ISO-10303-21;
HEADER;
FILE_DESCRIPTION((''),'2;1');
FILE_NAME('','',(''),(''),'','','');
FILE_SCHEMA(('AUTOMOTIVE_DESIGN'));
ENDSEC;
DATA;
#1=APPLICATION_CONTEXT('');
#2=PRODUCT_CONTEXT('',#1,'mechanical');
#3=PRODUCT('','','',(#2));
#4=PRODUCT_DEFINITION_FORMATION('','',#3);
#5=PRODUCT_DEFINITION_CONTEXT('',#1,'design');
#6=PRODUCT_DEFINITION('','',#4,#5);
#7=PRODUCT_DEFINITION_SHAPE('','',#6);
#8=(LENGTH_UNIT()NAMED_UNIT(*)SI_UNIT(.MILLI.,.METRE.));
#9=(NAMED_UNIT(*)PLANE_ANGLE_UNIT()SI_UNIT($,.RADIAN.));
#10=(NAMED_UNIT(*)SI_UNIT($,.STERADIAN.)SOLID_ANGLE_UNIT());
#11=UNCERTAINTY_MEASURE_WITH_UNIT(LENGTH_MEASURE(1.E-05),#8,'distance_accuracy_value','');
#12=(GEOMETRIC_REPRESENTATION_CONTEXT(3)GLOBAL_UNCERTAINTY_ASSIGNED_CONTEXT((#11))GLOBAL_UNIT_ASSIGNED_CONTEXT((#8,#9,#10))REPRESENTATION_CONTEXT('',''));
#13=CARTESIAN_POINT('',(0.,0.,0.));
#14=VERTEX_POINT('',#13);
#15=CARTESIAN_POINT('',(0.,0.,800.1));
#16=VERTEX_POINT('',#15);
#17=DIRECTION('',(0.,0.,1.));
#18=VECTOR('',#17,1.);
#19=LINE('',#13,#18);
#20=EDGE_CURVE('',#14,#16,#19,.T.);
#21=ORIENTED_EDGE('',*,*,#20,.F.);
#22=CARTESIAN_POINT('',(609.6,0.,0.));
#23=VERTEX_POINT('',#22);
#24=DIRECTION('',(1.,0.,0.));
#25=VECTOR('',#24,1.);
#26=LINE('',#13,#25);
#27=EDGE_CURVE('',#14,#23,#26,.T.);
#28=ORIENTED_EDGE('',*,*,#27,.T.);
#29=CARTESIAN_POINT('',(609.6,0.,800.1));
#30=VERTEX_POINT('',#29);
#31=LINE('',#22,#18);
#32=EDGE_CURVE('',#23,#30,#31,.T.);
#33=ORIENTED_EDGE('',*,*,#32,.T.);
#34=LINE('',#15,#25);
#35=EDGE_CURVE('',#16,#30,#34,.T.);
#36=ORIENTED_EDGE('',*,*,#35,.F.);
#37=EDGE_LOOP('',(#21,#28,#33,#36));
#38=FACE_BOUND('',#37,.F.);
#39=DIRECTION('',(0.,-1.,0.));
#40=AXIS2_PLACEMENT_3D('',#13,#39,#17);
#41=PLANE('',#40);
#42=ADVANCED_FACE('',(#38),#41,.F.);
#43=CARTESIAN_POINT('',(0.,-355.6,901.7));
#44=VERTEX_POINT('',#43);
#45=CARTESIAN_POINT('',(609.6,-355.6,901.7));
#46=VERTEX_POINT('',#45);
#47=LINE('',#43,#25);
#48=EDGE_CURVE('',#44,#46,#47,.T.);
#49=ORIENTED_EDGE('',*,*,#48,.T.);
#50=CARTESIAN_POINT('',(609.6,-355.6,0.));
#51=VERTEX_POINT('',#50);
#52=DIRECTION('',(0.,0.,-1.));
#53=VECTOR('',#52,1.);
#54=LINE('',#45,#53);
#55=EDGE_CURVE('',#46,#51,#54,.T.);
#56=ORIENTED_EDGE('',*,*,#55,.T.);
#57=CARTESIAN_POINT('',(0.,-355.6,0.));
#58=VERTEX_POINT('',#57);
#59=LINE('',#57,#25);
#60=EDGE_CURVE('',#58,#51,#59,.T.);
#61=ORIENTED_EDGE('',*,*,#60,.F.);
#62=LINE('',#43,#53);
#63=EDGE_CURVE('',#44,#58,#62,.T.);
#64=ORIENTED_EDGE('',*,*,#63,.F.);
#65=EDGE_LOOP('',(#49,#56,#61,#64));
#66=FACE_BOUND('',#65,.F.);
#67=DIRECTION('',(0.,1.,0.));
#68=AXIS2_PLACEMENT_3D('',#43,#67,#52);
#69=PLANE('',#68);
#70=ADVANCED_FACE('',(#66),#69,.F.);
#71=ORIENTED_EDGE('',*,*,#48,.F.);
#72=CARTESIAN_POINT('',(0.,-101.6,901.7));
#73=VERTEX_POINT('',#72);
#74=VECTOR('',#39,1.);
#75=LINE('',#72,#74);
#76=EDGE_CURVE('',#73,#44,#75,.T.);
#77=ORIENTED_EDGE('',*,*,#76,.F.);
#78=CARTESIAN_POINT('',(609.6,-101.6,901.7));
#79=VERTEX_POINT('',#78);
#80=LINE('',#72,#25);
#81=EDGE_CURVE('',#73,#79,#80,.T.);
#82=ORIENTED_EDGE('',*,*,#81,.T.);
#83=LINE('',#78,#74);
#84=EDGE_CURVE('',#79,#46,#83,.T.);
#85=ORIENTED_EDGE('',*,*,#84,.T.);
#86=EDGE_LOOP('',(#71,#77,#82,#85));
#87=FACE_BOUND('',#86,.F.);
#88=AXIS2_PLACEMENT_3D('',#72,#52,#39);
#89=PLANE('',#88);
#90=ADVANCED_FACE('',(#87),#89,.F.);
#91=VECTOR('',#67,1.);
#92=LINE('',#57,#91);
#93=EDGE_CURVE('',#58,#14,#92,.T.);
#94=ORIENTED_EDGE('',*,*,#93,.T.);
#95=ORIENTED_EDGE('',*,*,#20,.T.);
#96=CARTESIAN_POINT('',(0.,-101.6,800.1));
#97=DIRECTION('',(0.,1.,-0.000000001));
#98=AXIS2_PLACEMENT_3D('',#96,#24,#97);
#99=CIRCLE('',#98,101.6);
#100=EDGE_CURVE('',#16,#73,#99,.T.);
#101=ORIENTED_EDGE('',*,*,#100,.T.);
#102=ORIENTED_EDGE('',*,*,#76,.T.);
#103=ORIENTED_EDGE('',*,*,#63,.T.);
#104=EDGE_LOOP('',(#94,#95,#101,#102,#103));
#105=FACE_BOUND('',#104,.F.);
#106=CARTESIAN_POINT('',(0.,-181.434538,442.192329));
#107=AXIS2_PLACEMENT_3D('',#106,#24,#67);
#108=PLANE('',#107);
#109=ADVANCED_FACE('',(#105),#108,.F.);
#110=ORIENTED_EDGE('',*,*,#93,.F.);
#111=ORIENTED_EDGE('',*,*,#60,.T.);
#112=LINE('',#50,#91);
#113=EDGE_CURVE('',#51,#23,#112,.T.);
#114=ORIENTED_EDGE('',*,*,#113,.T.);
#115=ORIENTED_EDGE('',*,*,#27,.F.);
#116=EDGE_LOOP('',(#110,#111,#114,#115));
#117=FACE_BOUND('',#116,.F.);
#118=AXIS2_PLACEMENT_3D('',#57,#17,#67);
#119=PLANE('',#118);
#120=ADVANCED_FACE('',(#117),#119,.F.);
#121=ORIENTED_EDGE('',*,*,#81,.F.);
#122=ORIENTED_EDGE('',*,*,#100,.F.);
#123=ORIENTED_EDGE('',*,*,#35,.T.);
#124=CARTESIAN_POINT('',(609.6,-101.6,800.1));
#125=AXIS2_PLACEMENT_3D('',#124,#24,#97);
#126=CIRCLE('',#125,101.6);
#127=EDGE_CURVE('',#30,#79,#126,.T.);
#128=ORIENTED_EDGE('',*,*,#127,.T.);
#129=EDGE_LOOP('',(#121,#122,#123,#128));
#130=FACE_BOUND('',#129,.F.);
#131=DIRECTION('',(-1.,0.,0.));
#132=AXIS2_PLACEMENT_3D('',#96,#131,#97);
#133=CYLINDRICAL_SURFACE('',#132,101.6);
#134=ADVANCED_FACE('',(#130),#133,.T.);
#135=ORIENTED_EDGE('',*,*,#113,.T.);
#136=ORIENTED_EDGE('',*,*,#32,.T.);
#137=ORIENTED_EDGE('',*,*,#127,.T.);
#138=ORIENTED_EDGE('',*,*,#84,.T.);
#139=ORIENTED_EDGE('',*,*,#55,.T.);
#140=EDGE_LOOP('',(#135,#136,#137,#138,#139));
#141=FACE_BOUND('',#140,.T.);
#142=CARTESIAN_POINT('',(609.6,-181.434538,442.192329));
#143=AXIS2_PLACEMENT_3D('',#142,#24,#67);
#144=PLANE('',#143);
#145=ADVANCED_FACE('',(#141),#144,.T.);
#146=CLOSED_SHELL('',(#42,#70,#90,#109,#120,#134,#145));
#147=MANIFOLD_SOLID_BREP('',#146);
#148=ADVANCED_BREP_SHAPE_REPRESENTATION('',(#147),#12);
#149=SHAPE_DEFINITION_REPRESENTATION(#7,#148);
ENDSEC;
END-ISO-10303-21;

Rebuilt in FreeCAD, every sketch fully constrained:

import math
import FreeCAD as App
import Part
import Sketcher
Q = App.Units.Quantity

doc = App.newDocument("Part")
params = doc.addObject("Spreadsheet::Sheet", "Params")
for row, (alias, value) in enumerate([
    ("sketch1_radius", "4 in"),
    ("sketch1_width", "14 in"),
    ("sketch1_height", "31.5 in"),
    ("pad1_length", "24 in"),
], start=1):
    params.set(f"A{row}", alias)
    params.set(f"B{row}", "=" + value)
    params.setAlias(f"B{row}", alias)

body = doc.addObject("PartDesign::Body", "Body")

sketch1 = doc.addObject("Sketcher::SketchObject", "Sketch")
body.addObject(sketch1)
sketch1.AttachmentSupport = (doc.YZ_Plane, [""])
sketch1.MapMode = "FlatFace"
sketch1.addGeometry(Part.LineSegment(App.Vector(-356, 0, 0), App.Vector(0, 0, 0)), False)
sketch1.addGeometry(Part.LineSegment(App.Vector(0, 0, 0), App.Vector(0, 800, 0)), False)
sketch1.addGeometry(Part.ArcOfCircle(Part.Circle(App.Vector(-102, 800, 0), App.Vector(0, 0, 1), 102), math.radians(0), math.radians(90)), False)
sketch1.addGeometry(Part.LineSegment(App.Vector(-102, 902, 0), App.Vector(-356, 902, 0)), False)
sketch1.addGeometry(Part.LineSegment(App.Vector(-356, 902, 0), App.Vector(-356, 0, 0)), False)
sketch1.addConstraint(Sketcher.Constraint("Coincident", 0, 2, 1, 1))
sketch1.addConstraint(Sketcher.Constraint("Tangent", 1, 2, 2, 1))
sketch1.addConstraint(Sketcher.Constraint("Tangent", 2, 2, 3, 1))
sketch1.addConstraint(Sketcher.Constraint("Coincident", 3, 2, 4, 1))
sketch1.addConstraint(Sketcher.Constraint("Coincident", 4, 2, 0, 1))
sketch1.addConstraint(Sketcher.Constraint("Horizontal", 0))
sketch1.addConstraint(Sketcher.Constraint("Vertical", 1))
sketch1.addConstraint(Sketcher.Constraint("Horizontal", 3))
sketch1.addConstraint(Sketcher.Constraint("Vertical", 4))
sketch1.addConstraint(Sketcher.Constraint("Coincident", 0, 2, -1, 1))
sketch1.addConstraint(Sketcher.Constraint("Radius", 2, Q("4 in")))
sketch1.addConstraint(Sketcher.Constraint("DistanceX", 0, 1, 0, 2, Q("14 in")))
sketch1.addConstraint(Sketcher.Constraint("DistanceY", 1, 1, 1, 2, Q("31.5 in")))
sketch1.setExpression("Constraints[10]", "Params.sketch1_radius")
sketch1.setExpression("Constraints[11]", "Params.sketch1_width")
sketch1.setExpression("Constraints[12]", "Params.sketch1_height")
pad1 = doc.addObject("PartDesign::Pad", "Pad")
body.addObject(pad1)
pad1.Profile = sketch1
pad1.setExpression("Length", "Params.pad1_length")

doc.recompute()
